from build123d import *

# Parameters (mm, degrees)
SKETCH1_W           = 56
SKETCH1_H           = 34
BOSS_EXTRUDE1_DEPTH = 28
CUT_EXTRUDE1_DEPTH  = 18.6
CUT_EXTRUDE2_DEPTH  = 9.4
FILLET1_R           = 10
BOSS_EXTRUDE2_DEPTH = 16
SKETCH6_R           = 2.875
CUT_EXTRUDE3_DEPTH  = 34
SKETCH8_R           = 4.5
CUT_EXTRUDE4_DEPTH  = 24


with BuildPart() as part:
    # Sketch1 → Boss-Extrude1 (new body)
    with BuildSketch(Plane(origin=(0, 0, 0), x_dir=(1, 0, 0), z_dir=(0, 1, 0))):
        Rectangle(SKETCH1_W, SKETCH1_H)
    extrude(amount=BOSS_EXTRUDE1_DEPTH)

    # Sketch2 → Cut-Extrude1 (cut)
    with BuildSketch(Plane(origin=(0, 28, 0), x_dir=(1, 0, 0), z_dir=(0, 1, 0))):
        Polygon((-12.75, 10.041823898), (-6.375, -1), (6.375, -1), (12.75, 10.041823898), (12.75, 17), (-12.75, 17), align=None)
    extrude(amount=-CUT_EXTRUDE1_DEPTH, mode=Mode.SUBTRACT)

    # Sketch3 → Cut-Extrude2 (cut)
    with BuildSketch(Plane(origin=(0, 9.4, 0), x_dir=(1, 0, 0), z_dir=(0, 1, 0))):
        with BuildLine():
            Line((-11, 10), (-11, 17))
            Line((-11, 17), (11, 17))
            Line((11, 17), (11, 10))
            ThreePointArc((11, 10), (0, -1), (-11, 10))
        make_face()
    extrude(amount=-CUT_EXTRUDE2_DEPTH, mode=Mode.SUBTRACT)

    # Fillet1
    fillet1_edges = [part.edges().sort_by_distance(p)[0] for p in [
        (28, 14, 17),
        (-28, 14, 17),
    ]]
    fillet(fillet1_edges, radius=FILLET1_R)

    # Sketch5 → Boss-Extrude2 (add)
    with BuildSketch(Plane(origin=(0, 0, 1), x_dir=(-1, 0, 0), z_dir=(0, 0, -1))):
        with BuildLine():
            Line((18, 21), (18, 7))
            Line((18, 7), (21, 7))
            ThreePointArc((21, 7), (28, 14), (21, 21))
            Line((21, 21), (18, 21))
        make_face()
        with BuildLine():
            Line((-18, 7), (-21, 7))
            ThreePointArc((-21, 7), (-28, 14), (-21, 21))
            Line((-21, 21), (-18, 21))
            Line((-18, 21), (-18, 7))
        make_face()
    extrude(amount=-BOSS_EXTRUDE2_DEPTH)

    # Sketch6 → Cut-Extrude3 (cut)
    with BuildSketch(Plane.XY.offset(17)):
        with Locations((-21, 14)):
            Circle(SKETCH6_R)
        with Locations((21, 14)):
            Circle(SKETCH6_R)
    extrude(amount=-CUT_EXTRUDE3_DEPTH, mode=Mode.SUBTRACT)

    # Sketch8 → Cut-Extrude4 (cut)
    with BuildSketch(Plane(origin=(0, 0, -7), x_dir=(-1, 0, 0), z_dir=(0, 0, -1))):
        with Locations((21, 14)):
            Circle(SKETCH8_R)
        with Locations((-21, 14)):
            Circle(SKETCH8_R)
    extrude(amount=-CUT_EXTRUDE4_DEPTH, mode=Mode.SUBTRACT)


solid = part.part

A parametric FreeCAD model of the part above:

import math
import FreeCAD as App
import Part
import Sketcher
Q = App.Units.Quantity


def edges_at(feature, points):
    """Names of the edges that pass closest to the given points."""
    edges = feature.Shape.Edges
    near = lambda p: min(range(len(edges)), key=lambda i: edges[i].distToShape(Part.Vertex(*p))[0])
    return sorted({f"Edge{near(p) + 1}" for p in points})

doc = App.newDocument("Part")
body = doc.addObject("PartDesign::Body", "Body")

sketch1 = body.newObject("Sketcher::SketchObject", "Sketch")
sketch1.AttachmentSupport = (doc.getObject("XZ_Plane"), [""])
sketch1.MapMode = "FlatFace"
sketch1.addGeometry([
    Part.LineSegment(App.Vector(-28, -17, 0), App.Vector(-28, 17, 0)),
    Part.LineSegment(App.Vector(-28, 17, 0), App.Vector(28, 17, 0)),
    Part.LineSegment(App.Vector(28, 17, 0), App.Vector(28, -17, 0)),
    Part.LineSegment(App.Vector(28, -17, 0), App.Vector(-28, -17, 0)),
], False)
sketch1.addConstraint([
    Sketcher.Constraint("Coincident", 0, 2, 1, 1),
    Sketcher.Constraint("Coincident", 1, 2, 2, 1),
    Sketcher.Constraint("Coincident", 2, 2, 3, 1),
    Sketcher.Constraint("Coincident", 3, 2, 0, 1),
    Sketcher.Constraint("Vertical", 0),
    Sketcher.Constraint("Horizontal", 1),
    Sketcher.Constraint("Vertical", 2),
    Sketcher.Constraint("Horizontal", 3),
    Sketcher.Constraint("Symmetric", 0, 2, 2, 2, -1, 1),
    Sketcher.Constraint("DistanceX", 1, 1, 1, 2, Q("56 mm")),
    Sketcher.Constraint("DistanceY", 0, 1, 0, 2, Q("34 mm")),
])
pad1 = body.newObject("PartDesign::Pad", "Pad")
pad1.Profile = sketch1
pad1.Length = 28
pad1.Reversed = True

sketch2 = body.newObject("Sketcher::SketchObject", "Sketch001")
sketch2.AttachmentSupport = (doc.getObject("XZ_Plane"), [""])
sketch2.MapMode = "FlatFace"
sketch2.AttachmentOffset = App.Placement(App.Vector(0, 0, -28), App.Rotation())
sketch2.addGeometry([
    Part.LineSegment(App.Vector(-13, -10, 0), App.Vector(-6, 1, 0)),
    Part.LineSegment(App.Vector(-6, 1, 0), App.Vector(6, 1, 0)),
    Part.LineSegment(App.Vector(6, 1, 0), App.Vector(13, -10, 0)),
    Part.LineSegment(App.Vector(13, -10, 0), App.Vector(13, -17, 0)),
    Part.LineSegment(App.Vector(13, -17, 0), App.Vector(-13, -17, 0)),
    Part.LineSegment(App.Vector(-13, -17, 0), App.Vector(-13, -10, 0)),
], False)
sketch2.addConstraint([
    Sketcher.Constraint("Coincident", 0, 2, 1, 1),
    Sketcher.Constraint("Coincident", 1, 2, 2, 1),
    Sketcher.Constraint("Coincident", 2, 2, 3, 1),
    Sketcher.Constraint("Coincident", 3, 2, 4, 1),
    Sketcher.Constraint("Coincident", 4, 2, 5, 1),
    Sketcher.Constraint("Coincident", 5, 2, 0, 1),
    Sketcher.Constraint("Horizontal", 1),
    Sketcher.Constraint("Vertical", 3),
    Sketcher.Constraint("Horizontal", 4),
    Sketcher.Constraint("Vertical", 5),
    Sketcher.Constraint("Symmetric", 2, 2, 5, 2, -2),
    Sketcher.Constraint("Equal", 0, 2),
    Sketcher.Constraint("Angle", 0, Q("60 deg")),
    Sketcher.Constraint("DistanceX", 4, 2, 4, 1, Q("25.5 mm")),
    Sketcher.Constraint("DistanceY", -1, 1, 0, 2, Q("1 mm")),
    Sketcher.Constraint("DistanceY", 3, 2, -1, 1, Q("17 mm")),
    Sketcher.Constraint("DistanceX", 1, 1, 1, 2, Q("12.75 mm")),
])
pocket1 = body.newObject("PartDesign::Pocket", "Pocket")
pocket1.Profile = sketch2
pocket1.Length = 18.6
pocket1.Reversed = True

sketch3 = body.newObject("Sketcher::SketchObject", "Sketch002")
sketch3.AttachmentSupport = (doc.getObject("XZ_Plane"), [""])
sketch3.MapMode = "FlatFace"
sketch3.AttachmentOffset = App.Placement(App.Vector(0, 0, -9.4), App.Rotation())
sketch3.addGeometry([
    Part.LineSegment(App.Vector(-11, -17, 0), App.Vector(-11, -10, 0)),
    Part.ArcOfCircle(Part.Circle(App.Vector(0, -10, 0), App.Vector(0, 0, 1), 11), math.radians(0), math.radians(180)),
    Part.LineSegment(App.Vector(11, -10, 0), App.Vector(11, -17, 0)),
    Part.LineSegment(App.Vector(11, -17, 0), App.Vector(-11, -17, 0)),
], False)
sketch3.addConstraint([
    Sketcher.Constraint("Tangent", 0, 2, 1, 2),
    Sketcher.Constraint("Tangent", 1, 1, 2, 1),
    Sketcher.Constraint("Coincident", 2, 2, 3, 1),
    Sketcher.Constraint("Coincident", 3, 2, 0, 1),
    Sketcher.Constraint("Vertical", 0),
    Sketcher.Constraint("Vertical", 2),
    Sketcher.Constraint("Horizontal", 3),
    Sketcher.Constraint("PointOnObject", 1, 3, -2),
    Sketcher.Constraint("Radius", 1, Q("11 mm")),
    Sketcher.Constraint("DistanceY", 0, 1, 0, 2, Q("7 mm")),
    Sketcher.Constraint("DistanceY", 1, 3, -1, 1, Q("10 mm")),
])
pocket2 = body.newObject("PartDesign::Pocket", "Pocket001")
pocket2.Profile = sketch3
pocket2.Length = 9.4
pocket2.Reversed = True
doc.recompute()

fillet = body.newObject("PartDesign::Fillet", "Fillet")
fillet.Base = (pocket2, edges_at(pocket2, [(28, 14, 17), (-28, 14, 17)]))
fillet.Radius = 10

sketch4 = body.newObject("Sketcher::SketchObject", "Sketch003")
sketch4.AttachmentSupport = (doc.getObject("XY_Plane"), [""])
sketch4.MapMode = "FlatFace"
sketch4.AttachmentOffset = App.Placement(App.Vector(0, 0, 1), App.Rotation())
sketch4.addGeometry([
    Part.LineSegment(App.Vector(-18, 21, 0), App.Vector(-18, 7, 0)),
    Part.LineSegment(App.Vector(-18, 7, 0), App.Vector(-21, 7, 0)),
    Part.ArcOfCircle(Part.Circle(App.Vector(-21, 14, 0), App.Vector(0, 0, 1), 7), math.radians(90), math.radians(270)),
    Part.LineSegment(App.Vector(-21, 21, 0), App.Vector(-18, 21, 0)),
    Part.LineSegment(App.Vector(21, 7, 0), App.Vector(18, 7, 0)),
    Part.LineSegment(App.Vector(18, 7, 0), App.Vector(18, 21, 0)),
    Part.LineSegment(App.Vector(18, 21, 0), App.Vector(21, 21, 0)),
    Part.ArcOfCircle(Part.Circle(App.Vector(21, 14, 0), App.Vector(0, 0, 1), 7), math.radians(-90), math.radians(90)),
], False)
sketch4.addConstraint([
    Sketcher.Constraint("Coincident", 0, 2, 1, 1),
    Sketcher.Constraint("Tangent", 1, 2, 2, 2),
    Sketcher.Constraint("Tangent", 2, 1, 3, 1),
    Sketcher.Constraint("Coincident", 3, 2, 0, 1),
    Sketcher.Constraint("Coincident", 4, 2, 5, 1),
    Sketcher.Constraint("Coincident", 5, 2, 6, 1),
    Sketcher.Constraint("Tangent", 6, 2, 7, 2),
    Sketcher.Constraint("Tangent", 7, 1, 4, 1),
    Sketcher.Constraint("Vertical", 0),
    Sketcher.Constraint("Horizontal", 1),
    Sketcher.Constraint("Horizontal", 3),
    Sketcher.Constraint("Horizontal", 4),
    Sketcher.Constraint("Vertical", 5),
    Sketcher.Constraint("Horizontal", 6),
    Sketcher.Constraint("Equal", 2, 7),
    Sketcher.Constraint("Symmetric", 2, 3, 7, 3, -2),
    Sketcher.Constraint("Equal", 3, 4),
    Sketcher.Constraint("Radius", 2, Q("7 mm")),
    Sketcher.Constraint("DistanceX", 1, 2, 1, 1, Q("3 mm")),
    Sketcher.Constraint("DistanceX", 2, 3, -1, 1, Q("21 mm")),
    Sketcher.Constraint("DistanceY", -1, 1, 2, 3, Q("14 mm")),
])
pad2 = body.newObject("PartDesign::Pad", "Pad001")
pad2.Profile = sketch4
pad2.Length = 16

sketch5 = body.newObject("Sketcher::SketchObject", "Sketch004")
sketch5.AttachmentSupport = (doc.getObject("XY_Plane"), [""])
sketch5.MapMode = "FlatFace"
sketch5.AttachmentOffset = App.Placement(App.Vector(0, 0, 17), App.Rotation())
sketch5.addGeometry([
    Part.Circle(App.Vector(-21, 14, 0), App.Vector(0, 0, 1), 2.9),
    Part.Circle(App.Vector(21, 14, 0), App.Vector(0, 0, 1), 2.9),
], False)
sketch5.addConstraint([
    Sketcher.Constraint("Equal", 0, 1),
    Sketcher.Constraint("Symmetric", 0, 3, 1, 3, -2),
    Sketcher.Constraint("Diameter", 0, Q("5.75 mm")),
    Sketcher.Constraint("DistanceX", 0, 3, -1, 1, Q("21 mm")),
    Sketcher.Constraint("DistanceY", -1, 1, 0, 3, Q("14 mm")),
])
pocket3 = body.newObject("PartDesign::Pocket", "Pocket002")
pocket3.Profile = sketch5
pocket3.Length = 34

sketch6 = body.newObject("Sketcher::SketchObject", "Sketch005")
sketch6.AttachmentSupport = (doc.getObject("XY_Plane"), [""])
sketch6.MapMode = "FlatFace"
sketch6.AttachmentOffset = App.Placement(App.Vector(0, 0, -7), App.Rotation())
sketch6.addGeometry([
    Part.Circle(App.Vector(-21, 14, 0), App.Vector(0, 0, 1), 4.5),
    Part.Circle(App.Vector(21, 14, 0), App.Vector(0, 0, 1), 4.5),
], False)
sketch6.addConstraint([
    Sketcher.Constraint("Equal", 0, 1),
    Sketcher.Constraint("Symmetric", 0, 3, 1, 3, -2),
    Sketcher.Constraint("Diameter", 0, Q("9 mm")),
    Sketcher.Constraint("DistanceX", 0, 3, -1, 1, Q("21 mm")),
    Sketcher.Constraint("DistanceY", -1, 1, 0, 3, Q("14 mm")),
])
pocket4 = body.newObject("PartDesign::Pocket", "Pocket003")
pocket4.Profile = sketch6
pocket4.Length = 24
pocket4.Reversed = True

doc.recompute()
